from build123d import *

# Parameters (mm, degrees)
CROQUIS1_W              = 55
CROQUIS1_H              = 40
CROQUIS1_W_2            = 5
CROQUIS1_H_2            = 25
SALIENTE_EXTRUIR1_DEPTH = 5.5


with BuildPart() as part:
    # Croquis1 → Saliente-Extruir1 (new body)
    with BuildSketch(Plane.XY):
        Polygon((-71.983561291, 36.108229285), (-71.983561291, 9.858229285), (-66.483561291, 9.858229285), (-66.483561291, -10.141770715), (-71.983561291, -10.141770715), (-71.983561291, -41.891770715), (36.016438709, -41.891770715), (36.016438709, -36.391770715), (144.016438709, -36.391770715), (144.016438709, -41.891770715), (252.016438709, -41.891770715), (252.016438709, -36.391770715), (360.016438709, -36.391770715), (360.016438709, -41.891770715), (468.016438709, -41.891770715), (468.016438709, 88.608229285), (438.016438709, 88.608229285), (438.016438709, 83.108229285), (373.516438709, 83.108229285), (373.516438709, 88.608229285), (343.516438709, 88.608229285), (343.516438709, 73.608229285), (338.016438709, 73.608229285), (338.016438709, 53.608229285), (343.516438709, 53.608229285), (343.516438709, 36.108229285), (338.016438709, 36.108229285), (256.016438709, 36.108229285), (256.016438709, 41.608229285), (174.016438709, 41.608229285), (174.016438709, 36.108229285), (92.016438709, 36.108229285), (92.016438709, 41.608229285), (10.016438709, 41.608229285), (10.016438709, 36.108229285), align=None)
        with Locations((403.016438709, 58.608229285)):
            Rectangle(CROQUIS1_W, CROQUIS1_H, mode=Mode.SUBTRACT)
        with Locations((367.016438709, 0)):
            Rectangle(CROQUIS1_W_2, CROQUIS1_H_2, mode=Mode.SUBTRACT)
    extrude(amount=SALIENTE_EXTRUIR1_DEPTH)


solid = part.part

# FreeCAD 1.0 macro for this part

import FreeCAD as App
import Part
import Sketcher

V = App.Vector


def add_polygon(sketch, points):
    """Adds a closed chain of lines whose ends are joined by coincident constraints."""
    first, n = sketch.GeometryCount, len(points)
    for a, b in zip(points, points[1:] + points[:1]):
        sketch.addGeometry(Part.LineSegment(App.Vector(*a, 0), App.Vector(*b, 0)), False)
    for i in range(n):
        sketch.addConstraint(Sketcher.Constraint("Coincident", first + i, 2, first + (i + 1) % n, 1))

doc = App.newDocument("Part")
body = doc.addObject("PartDesign::Body", "Body")

sketch1 = doc.addObject("Sketcher::SketchObject", "Sketch")
body.addObject(sketch1)
sketch1.AttachmentSupport = (doc.XY_Plane, [""])
sketch1.MapMode = "FlatFace"
add_polygon(sketch1, [(-72, 36), (-72, 10), (-66, 10), (-66, -10), (-72, -10), (-72, -42), (36, -42), (36, -36), (144, -36), (144, -42), (252, -42), (252, -36), (360, -36), (360, -42), (468, -42), (468, 89), (438, 89), (438, 83), (374, 83), (374, 89), (344, 89), (344, 74), (338, 74), (338, 54), (344, 54), (344, 36), (256, 36), (256, 42), (174, 42), (174, 36), (92, 36), (92, 42), (10, 42), (10, 36)])
add_polygon(sketch1, [(370, -12), (365, -12), (365, 12), (370, 12)])
add_polygon(sketch1, [(431, 39), (376, 39), (376, 79), (431, 79)])
sketch1.addConstraint([
    Sketcher.Constraint("Vertical", 0),
    Sketcher.Constraint("Horizontal", 1),
    Sketcher.Constraint("Vertical", 2),
    Sketcher.Constraint("Horizontal", 3),
    Sketcher.Constraint("Vertical", 4),
    Sketcher.Constraint("Horizontal", 5),
    Sketcher.Constraint("Vertical", 6),
    Sketcher.Constraint("Horizontal", 7),
    Sketcher.Constraint("Vertical", 8),
    Sketcher.Constraint("Horizontal", 9),
    Sketcher.Constraint("Vertical", 10),
    Sketcher.Constraint("Horizontal", 11),
    Sketcher.Constraint("Vertical", 12),
    Sketcher.Constraint("Horizontal", 13),
    Sketcher.Constraint("Vertical", 14),
    Sketcher.Constraint("Horizontal", 15),
    Sketcher.Constraint("Vertical", 16),
    Sketcher.Constraint("Horizontal", 17),
    Sketcher.Constraint("Vertical", 18),
    Sketcher.Constraint("Horizontal", 19),
    Sketcher.Constraint("Vertical", 20),
    Sketcher.Constraint("Horizontal", 21),
    Sketcher.Constraint("Vertical", 22),
    Sketcher.Constraint("Horizontal", 23),
    Sketcher.Constraint("Vertical", 24),
    Sketcher.Constraint("Horizontal", 25),
    Sketcher.Constraint("Vertical", 26),
    Sketcher.Constraint("Horizontal", 27),
    Sketcher.Constraint("Vertical", 28),
    Sketcher.Constraint("Horizontal", 29),
    Sketcher.Constraint("Vertical", 30),
    Sketcher.Constraint("Horizontal", 31),
    Sketcher.Constraint("Vertical", 32),
    Sketcher.Constraint("Horizontal", 33),
    Sketcher.Constraint("Horizontal", 34),
    Sketcher.Constraint("Vertical", 35),
    Sketcher.Constraint("Horizontal", 36),
    Sketcher.Constraint("Vertical", 37),
    Sketcher.Constraint("Horizontal", 38),
    Sketcher.Constraint("Vertical", 39),
    Sketcher.Constraint("Horizontal", 40),
    Sketcher.Constraint("Vertical", 41),
    Sketcher.Constraint("Horizontal", 5, 2, 8, 2),
    Sketcher.Constraint("Horizontal", 7, 2, 10, 2),
    Sketcher.Constraint("Horizontal", 9, 2, 12, 2),
    Sketcher.Constraint("Horizontal", 15, 2, 18, 2),
    Sketcher.Constraint("Horizontal", 25, 2, 28, 2),
    Sketcher.Constraint("Horizontal", 27, 2, 30, 2),
    Sketcher.Constraint("Horizontal", 29, 2, 32, 2),
    Sketcher.Constraint("Vertical", 0, 2, 3, 2),
    Sketcher.Constraint("Vertical", 20, 2, 23, 2),
    Sketcher.Constraint("Equal", 5, 7),
    Sketcher.Constraint("Equal", 7, 9),
    Sketcher.Constraint("Equal", 9, 11),
    Sketcher.Constraint("Equal", 11, 13),
    Sketcher.Constraint("Equal", 15, 19),
    Sketcher.Constraint("Equal", 3, 21),
    Sketcher.Constraint("Equal", 27, 29),
    Sketcher.Constraint("Equal", 29, 31),
    Sketcher.Constraint("Equal", 31, 33),
    Sketcher.Constraint("Equal", 23, 6),
    Sketcher.Constraint("Equal", 12, 16),
    Sketcher.Constraint("Equal", 2, 22),
    Sketcher.Constraint("Equal", 18, 26),
    Sketcher.Constraint("DistanceX", 5, 1, 5, 2, 108.0),
    Sketcher.Constraint("DistanceX", 15, 2, 15, 1, 30.0),
    Sketcher.Constraint("DistanceX", 27, 2, 27, 1, 82.0),
    Sketcher.Constraint("DistanceX", 34, 2, 34, 1, 5.0),
    Sketcher.Constraint("DistanceX", 38, 2, 38, 1, 55.0),
    Sketcher.Constraint("DistanceY", 2, 2, 2, 1, 20.0),
    Sketcher.Constraint("DistanceY", 20, 2, 20, 1, 15.0),
    Sketcher.Constraint("DistanceY", 35, 1, 35, 2, 25.0),
    Sketcher.Constraint("DistanceY", 39, 1, 39, 2, 40.0),
    Sketcher.Constraint("DistanceX", 1, 1, 1, 2, 5.5),
    Sketcher.Constraint("DistanceX", 17, 2, 17, 1, 64.5),
    Sketcher.Constraint("DistanceY", 14, 1, 14, 2, 130.5),
    Sketcher.Constraint("DistanceY", 24, 2, 24, 1, 17.5),
    Sketcher.Constraint("DistanceX", 24, 2, 34, 2, 21.0),
    Sketcher.Constraint("DistanceX", 36, 2, 38, 2, 6.0),
    Sketcher.Constraint("DistanceY", 38, 2, 23, 2, 15.0),
    Sketcher.Constraint("DistanceY", 0, 2, 0, 1, 26.25),
    Sketcher.Constraint("DistanceY", 34, 2, -1, 1, 12.5),
    Sketcher.Constraint("DistanceX", 0, 2, -1, 1, 71.983561),
    Sketcher.Constraint("DistanceY", -1, 1, 0, 2, 9.858229),
])
pad1 = doc.addObject("PartDesign::Pad", "Pad")
body.addObject(pad1)
pad1.Profile = sketch1
pad1.Length = 5.5

doc.recompute()
